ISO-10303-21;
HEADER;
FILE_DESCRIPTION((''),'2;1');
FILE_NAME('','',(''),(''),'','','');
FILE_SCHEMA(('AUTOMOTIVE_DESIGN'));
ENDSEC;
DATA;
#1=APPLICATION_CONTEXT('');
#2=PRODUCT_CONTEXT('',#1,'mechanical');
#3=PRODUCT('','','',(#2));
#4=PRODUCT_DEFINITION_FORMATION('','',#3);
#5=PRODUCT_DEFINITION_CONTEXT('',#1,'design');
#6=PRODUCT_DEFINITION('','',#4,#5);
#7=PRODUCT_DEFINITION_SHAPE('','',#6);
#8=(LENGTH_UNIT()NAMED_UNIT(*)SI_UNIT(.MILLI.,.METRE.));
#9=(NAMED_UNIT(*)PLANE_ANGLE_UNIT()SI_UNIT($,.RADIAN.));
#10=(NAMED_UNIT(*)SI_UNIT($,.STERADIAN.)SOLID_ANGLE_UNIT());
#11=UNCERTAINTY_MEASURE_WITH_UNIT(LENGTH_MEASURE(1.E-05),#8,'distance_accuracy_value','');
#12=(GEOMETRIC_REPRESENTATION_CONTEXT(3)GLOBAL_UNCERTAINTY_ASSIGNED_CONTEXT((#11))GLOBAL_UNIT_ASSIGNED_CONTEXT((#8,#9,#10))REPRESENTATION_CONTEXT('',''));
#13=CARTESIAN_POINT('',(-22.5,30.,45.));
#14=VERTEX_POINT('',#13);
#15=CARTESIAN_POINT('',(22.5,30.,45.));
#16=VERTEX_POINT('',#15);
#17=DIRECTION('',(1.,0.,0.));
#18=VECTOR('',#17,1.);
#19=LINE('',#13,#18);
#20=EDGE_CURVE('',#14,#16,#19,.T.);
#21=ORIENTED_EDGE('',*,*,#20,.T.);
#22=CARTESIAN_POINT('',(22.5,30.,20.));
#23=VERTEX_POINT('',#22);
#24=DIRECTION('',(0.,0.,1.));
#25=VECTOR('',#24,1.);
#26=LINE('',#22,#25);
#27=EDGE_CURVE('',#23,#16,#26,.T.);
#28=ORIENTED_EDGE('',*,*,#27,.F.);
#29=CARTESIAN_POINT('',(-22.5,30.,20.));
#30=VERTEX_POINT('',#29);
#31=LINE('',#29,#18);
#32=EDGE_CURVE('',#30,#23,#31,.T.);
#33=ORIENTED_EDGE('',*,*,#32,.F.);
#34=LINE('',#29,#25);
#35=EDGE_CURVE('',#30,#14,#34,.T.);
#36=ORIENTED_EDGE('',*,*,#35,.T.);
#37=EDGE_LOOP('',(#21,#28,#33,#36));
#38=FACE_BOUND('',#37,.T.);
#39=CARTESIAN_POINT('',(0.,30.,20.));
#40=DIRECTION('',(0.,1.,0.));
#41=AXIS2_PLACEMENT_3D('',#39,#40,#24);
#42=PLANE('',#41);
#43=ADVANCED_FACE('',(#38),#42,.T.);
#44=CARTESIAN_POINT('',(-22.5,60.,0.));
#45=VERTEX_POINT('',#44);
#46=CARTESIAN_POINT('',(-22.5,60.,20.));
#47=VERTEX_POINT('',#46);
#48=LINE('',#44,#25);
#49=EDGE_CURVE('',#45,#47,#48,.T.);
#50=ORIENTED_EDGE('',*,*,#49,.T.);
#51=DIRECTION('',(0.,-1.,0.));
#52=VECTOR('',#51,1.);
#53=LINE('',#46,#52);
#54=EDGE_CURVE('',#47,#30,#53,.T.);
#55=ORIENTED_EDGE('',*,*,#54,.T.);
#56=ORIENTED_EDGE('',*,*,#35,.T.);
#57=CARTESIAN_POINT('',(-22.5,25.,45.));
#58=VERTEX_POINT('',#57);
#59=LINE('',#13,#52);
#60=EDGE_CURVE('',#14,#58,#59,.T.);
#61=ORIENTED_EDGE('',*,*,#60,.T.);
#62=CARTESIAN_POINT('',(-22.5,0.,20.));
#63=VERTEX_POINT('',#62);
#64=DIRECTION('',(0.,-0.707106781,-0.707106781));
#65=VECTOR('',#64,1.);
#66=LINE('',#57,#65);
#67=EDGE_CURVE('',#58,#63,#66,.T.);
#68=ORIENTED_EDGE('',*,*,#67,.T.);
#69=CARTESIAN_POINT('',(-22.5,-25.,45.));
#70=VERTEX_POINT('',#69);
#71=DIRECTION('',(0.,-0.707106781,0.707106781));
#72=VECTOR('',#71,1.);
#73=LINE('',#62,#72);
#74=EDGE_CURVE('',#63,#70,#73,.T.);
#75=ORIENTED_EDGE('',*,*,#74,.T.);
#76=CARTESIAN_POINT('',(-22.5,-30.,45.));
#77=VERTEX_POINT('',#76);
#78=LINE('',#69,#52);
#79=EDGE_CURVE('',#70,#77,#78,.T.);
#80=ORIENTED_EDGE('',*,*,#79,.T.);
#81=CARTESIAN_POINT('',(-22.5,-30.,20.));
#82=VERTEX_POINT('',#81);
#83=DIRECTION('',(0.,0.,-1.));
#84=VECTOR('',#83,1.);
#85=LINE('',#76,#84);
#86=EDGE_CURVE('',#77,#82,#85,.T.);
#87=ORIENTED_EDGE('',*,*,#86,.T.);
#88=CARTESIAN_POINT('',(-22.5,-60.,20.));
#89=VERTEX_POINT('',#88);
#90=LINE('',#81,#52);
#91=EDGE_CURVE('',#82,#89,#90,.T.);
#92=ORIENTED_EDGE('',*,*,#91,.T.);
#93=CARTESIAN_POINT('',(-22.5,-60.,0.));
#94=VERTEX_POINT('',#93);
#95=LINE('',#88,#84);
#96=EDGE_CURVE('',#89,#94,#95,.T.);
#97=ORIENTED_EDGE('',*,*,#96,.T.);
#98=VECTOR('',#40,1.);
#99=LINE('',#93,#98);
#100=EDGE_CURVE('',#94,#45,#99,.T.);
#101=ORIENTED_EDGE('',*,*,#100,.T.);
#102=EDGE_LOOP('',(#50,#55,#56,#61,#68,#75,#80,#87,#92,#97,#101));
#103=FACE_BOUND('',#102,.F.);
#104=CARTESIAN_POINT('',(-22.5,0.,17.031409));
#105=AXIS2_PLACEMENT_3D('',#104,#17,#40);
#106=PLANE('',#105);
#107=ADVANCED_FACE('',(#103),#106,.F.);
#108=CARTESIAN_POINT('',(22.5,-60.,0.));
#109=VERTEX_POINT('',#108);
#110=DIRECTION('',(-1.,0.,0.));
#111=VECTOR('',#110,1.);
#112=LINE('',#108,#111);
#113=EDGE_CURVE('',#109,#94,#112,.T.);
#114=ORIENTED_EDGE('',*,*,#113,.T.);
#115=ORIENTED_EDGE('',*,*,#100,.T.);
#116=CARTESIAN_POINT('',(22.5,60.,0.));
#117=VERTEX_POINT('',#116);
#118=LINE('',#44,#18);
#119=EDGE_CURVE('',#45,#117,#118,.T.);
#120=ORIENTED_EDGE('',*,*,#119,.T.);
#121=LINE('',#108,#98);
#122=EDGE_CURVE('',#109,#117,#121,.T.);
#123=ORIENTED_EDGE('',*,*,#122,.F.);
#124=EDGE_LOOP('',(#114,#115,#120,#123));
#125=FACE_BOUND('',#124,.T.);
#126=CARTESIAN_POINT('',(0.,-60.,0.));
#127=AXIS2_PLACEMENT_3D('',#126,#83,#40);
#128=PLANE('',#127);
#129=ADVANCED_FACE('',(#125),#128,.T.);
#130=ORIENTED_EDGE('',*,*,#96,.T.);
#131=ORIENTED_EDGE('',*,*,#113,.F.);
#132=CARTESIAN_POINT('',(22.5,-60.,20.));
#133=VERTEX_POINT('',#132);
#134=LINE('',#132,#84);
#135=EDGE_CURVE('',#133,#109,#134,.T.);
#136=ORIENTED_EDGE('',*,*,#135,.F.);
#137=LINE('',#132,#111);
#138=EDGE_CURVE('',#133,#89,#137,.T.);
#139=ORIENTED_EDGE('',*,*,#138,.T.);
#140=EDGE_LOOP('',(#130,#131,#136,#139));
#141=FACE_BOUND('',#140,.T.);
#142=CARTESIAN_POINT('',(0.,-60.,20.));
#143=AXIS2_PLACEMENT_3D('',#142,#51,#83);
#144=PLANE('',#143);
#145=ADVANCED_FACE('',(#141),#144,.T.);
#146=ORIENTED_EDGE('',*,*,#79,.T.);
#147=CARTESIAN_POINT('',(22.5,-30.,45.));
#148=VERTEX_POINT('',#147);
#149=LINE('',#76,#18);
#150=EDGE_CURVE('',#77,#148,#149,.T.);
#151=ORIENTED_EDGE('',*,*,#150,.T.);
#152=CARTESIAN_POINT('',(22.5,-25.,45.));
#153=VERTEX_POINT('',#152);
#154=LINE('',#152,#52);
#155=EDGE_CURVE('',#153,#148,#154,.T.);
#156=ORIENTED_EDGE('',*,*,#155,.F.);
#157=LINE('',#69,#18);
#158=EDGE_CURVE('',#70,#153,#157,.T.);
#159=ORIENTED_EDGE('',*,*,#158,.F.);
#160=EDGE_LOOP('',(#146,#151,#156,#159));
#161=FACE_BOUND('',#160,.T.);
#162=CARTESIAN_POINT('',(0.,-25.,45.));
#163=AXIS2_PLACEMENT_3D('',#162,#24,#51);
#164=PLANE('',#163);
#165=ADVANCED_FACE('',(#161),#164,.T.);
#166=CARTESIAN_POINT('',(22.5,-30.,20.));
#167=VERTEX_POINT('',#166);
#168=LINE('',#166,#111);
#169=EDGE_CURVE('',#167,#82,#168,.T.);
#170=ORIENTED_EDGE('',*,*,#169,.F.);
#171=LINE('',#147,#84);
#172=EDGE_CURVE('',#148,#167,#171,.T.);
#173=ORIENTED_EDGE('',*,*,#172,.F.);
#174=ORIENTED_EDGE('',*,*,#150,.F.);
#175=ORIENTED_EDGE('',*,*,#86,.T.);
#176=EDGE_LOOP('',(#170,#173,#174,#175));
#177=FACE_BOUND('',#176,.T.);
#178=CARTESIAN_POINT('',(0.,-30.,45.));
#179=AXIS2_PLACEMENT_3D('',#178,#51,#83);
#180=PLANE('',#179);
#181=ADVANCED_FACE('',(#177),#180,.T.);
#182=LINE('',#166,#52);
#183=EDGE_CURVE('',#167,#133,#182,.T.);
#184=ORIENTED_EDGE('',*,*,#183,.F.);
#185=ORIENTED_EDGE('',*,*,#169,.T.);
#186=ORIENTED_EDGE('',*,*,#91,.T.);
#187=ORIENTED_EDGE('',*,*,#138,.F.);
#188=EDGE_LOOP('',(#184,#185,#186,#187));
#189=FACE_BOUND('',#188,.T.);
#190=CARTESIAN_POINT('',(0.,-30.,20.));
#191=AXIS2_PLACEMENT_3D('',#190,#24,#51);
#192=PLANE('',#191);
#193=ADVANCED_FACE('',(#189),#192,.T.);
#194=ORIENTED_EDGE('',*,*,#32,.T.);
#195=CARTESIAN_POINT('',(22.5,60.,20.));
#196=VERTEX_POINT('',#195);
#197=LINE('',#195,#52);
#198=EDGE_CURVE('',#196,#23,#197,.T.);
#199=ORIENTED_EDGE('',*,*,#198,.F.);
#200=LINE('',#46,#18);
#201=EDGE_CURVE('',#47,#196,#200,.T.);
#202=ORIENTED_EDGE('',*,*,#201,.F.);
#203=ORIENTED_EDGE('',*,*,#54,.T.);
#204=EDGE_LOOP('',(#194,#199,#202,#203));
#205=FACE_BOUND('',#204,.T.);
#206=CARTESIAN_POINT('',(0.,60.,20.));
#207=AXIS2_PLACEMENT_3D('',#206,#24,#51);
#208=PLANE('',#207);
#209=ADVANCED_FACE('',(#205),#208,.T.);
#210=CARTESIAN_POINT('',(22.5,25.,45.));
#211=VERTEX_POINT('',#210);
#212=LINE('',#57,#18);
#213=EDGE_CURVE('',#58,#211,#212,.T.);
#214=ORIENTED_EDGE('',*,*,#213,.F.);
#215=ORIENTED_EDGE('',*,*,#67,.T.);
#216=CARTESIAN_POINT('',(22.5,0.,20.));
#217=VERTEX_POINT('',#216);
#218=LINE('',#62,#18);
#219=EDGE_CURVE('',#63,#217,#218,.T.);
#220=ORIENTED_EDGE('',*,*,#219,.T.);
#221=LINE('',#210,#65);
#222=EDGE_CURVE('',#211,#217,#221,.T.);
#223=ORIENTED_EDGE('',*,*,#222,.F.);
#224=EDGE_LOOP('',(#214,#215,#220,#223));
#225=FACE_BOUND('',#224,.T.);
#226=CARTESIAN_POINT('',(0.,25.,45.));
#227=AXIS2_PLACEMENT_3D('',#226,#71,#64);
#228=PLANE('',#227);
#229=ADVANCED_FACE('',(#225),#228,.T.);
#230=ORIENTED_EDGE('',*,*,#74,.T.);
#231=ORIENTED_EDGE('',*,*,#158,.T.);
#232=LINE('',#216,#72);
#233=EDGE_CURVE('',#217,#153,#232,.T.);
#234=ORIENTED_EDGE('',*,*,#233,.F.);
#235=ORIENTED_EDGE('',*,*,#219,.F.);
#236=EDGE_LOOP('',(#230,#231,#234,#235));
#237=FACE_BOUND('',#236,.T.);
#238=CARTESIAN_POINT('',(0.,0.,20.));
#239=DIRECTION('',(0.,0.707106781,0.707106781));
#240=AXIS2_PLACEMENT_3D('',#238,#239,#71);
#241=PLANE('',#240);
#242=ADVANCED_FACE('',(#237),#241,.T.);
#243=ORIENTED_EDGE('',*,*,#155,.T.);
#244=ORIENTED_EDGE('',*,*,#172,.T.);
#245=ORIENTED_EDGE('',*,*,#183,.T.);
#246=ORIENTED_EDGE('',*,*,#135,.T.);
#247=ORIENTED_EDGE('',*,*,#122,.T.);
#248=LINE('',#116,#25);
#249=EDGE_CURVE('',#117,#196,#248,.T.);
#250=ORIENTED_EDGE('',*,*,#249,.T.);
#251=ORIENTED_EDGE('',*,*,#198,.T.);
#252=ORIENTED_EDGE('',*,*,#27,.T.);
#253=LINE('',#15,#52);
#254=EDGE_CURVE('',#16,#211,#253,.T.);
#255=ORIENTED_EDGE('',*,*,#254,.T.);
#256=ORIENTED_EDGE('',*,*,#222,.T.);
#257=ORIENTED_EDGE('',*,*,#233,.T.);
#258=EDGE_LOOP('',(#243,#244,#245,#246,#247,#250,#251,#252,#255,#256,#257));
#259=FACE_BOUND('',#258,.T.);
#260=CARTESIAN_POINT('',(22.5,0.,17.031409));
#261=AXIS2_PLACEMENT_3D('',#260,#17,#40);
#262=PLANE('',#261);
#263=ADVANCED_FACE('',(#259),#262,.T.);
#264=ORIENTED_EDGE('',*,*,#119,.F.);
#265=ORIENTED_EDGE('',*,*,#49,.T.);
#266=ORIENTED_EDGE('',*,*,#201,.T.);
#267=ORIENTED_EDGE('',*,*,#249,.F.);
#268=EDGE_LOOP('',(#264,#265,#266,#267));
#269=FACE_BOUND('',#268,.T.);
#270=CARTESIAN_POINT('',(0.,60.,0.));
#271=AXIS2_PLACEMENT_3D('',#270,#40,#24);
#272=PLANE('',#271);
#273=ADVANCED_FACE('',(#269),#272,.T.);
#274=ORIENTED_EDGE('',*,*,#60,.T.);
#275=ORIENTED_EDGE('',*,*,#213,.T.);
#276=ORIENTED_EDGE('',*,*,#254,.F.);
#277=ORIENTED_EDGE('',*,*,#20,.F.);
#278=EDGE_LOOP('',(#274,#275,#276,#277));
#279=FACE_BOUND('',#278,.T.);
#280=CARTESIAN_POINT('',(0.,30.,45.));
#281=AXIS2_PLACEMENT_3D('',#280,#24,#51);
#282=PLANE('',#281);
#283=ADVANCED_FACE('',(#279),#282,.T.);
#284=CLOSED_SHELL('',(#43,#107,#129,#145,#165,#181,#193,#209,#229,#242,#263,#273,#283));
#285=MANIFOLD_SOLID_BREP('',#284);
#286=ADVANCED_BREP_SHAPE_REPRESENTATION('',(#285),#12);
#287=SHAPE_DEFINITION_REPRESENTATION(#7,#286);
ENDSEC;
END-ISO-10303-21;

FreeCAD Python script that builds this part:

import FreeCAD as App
import Part
import Sketcher


def add_polygon(sketch, points):
    """Adds a closed chain of lines whose ends are joined by coincident constraints."""
    first, n = sketch.GeometryCount, len(points)
    for a, b in zip(points, points[1:] + points[:1]):
        sketch.addGeometry(Part.LineSegment(App.Vector(*a, 0), App.Vector(*b, 0)), False)
    for i in range(n):
        sketch.addConstraint(Sketcher.Constraint("Coincident", first + i, 2, first + (i + 1) % n, 1))

doc = App.newDocument("Part")
body = doc.addObject("PartDesign::Body", "Body")

sketch1 = doc.addObject("Sketcher::SketchObject", "Sketch")
body.addObject(sketch1)
sketch1.AttachmentSupport = (doc.YZ_Plane, [""])
sketch1.MapMode = "FlatFace"
add_polygon(sketch1, [(-60, 0), (60, 0), (60, 20), (30, 20), (30, 45), (25, 45), (0, 20), (-25, 45), (-30, 45), (-30, 20), (-60, 20)])
sketch1.addConstraint([
    Sketcher.Constraint("Horizontal", 0),
    Sketcher.Constraint("Vertical", 1),
    Sketcher.Constraint("Horizontal", 2),
    Sketcher.Constraint("Vertical", 3),
    Sketcher.Constraint("Horizontal", 4),
    Sketcher.Constraint("Horizontal", 7),
    Sketcher.Constraint("Vertical", 8),
    Sketcher.Constraint("Horizontal", 9),
    Sketcher.Constraint("Vertical", 10),
    Sketcher.Constraint("Symmetric", 0, 2, 10, 2, -1, 1),
    Sketcher.Constraint("Symmetric", 4, 2, 6, 2, -2),
    Sketcher.Constraint("Symmetric", 2, 2, 8, 2, -2),
    Sketcher.Constraint("PointOnObject", 5, 2, -2),
    Sketcher.Constraint("Perpendicular", 5, 6),
    Sketcher.Constraint("Horizontal", 2, 2, 5, 2),
    Sketcher.Constraint("DistanceX", 0, 1, 0, 2, 120.0),
    Sketcher.Constraint("DistanceX", 2, 2, 2, 1, 30.0),
    Sketcher.Constraint("DistanceX", 4, 2, 4, 1, 5.0),
    Sketcher.Constraint("DistanceY", 1, 1, 1, 2, 20.0),
])
pad1 = doc.addObject("PartDesign::Pad", "Pad")
body.addObject(pad1)
pad1.Profile = sketch1
pad1.Length = 45
pad1.Midplane = True

doc.recompute()
